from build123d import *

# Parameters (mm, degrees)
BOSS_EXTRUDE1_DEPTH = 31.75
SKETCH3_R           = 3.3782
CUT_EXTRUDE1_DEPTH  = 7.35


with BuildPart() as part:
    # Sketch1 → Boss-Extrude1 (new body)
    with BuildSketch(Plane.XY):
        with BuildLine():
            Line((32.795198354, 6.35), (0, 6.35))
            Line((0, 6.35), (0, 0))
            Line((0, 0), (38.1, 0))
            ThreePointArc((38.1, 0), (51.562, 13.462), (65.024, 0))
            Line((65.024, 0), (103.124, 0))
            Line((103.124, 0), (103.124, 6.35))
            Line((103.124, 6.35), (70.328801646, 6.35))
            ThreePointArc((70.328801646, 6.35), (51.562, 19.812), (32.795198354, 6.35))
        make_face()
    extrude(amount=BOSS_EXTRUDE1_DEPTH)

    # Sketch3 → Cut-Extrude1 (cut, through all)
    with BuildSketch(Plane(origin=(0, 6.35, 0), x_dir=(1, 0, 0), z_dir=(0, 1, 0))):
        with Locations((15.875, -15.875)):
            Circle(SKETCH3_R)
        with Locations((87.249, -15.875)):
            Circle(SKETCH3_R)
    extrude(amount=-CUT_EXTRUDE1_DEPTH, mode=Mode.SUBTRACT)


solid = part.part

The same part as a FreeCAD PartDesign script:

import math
import FreeCAD as App
import Part
import Sketcher
Q = App.Units.Quantity

doc = App.newDocument("Part")
body = doc.addObject("PartDesign::Body", "Body")

# Sketch on XY plane
sketch1 = body.newObject("Sketcher::SketchObject", "Sketch")
sketch1.AttachmentSupport = (doc.getObject("XY_Plane"), [""])
sketch1.MapMode = "FlatFace"
sketch1.addGeometry([
    Part.LineSegment(App.Vector(32.795198, 6.35, 0), App.Vector(0, 6.35, 0)),  # 0
    Part.LineSegment(App.Vector(0, 6.35, 0), App.Vector(0, 0, 0)),  # 1
    Part.LineSegment(App.Vector(0, 0, 0), App.Vector(38.1, 0, 0)),  # 2
    Part.ArcOfCircle(Part.Circle(App.Vector(51.562, 0, 0), App.Vector(0, 0, 1), 13.462), math.radians(0), math.radians(180)),  # 3
    Part.LineSegment(App.Vector(65.024, 0, 0), App.Vector(103.124, 0, 0)),  # 4
    Part.LineSegment(App.Vector(103.124, 0, 0), App.Vector(103.124, 6.35, 0)),  # 5
    Part.LineSegment(App.Vector(103.124, 6.35, 0), App.Vector(70.328802, 6.35, 0)),  # 6
    Part.ArcOfCircle(Part.Circle(App.Vector(51.562, 0, 0), App.Vector(0, 0, 1), 19.812), math.radians(18.693941), math.radians(161.306059)),  # 7
], False)
sketch1.addConstraint([
    Sketcher.Constraint("Coincident", 0, 2, 1, 1),
    Sketcher.Constraint("Coincident", 1, 2, 2, 1),
    Sketcher.Constraint("Coincident", 2, 2, 3, 2),
    Sketcher.Constraint("Coincident", 3, 1, 4, 1),
    Sketcher.Constraint("Coincident", 4, 2, 5, 1),
    Sketcher.Constraint("Coincident", 5, 2, 6, 1),
    Sketcher.Constraint("Coincident", 6, 2, 7, 1),
    Sketcher.Constraint("Coincident", 7, 2, 0, 1),
    Sketcher.Constraint("Horizontal", 0),
    Sketcher.Constraint("Vertical", 1),
    Sketcher.Constraint("Horizontal", 2),
    Sketcher.Constraint("Horizontal", 4),
    Sketcher.Constraint("Vertical", 5),
    Sketcher.Constraint("Horizontal", 6),
    Sketcher.Constraint("Coincident", 1, 2, -1, 1),
    Sketcher.Constraint("Coincident", 7, 3, 3, 3),
    Sketcher.Constraint("PointOnObject", 3, 3, -1),
    Sketcher.Constraint("PointOnObject", 3, 1, -1),
    Sketcher.Constraint("Horizontal", 0, 2, 5, 2),
    Sketcher.Constraint("Equal", 2, 4),
    Sketcher.Constraint("Radius", 3, Q("0.53 in")),
    Sketcher.Constraint("Radius", 7, Q("0.78 in")),
    Sketcher.Constraint("DistanceX", 2, 1, 2, 2, Q("1.5 in")),
    Sketcher.Constraint("DistanceY", 1, 2, 1, 1, Q("0.25 in")),
])
pad1 = body.newObject("PartDesign::Pad", "Pad")
pad1.Profile = sketch1
pad1.Length = Q("1.25 in")

# Sketch on XZ plane
sketch2 = body.newObject("Sketcher::SketchObject", "Sketch001")
sketch2.AttachmentSupport = (doc.getObject("XZ_Plane"), [""])
sketch2.MapMode = "FlatFace"
sketch2.AttachmentOffset = App.Placement(App.Vector(0, 0, -0.25 * 25.4), App.Rotation())
sketch2.addGeometry([
    Part.Circle(App.Vector(15.875, 15.875, 0), App.Vector(0, 0, 1), 3.3782),
    Part.Circle(App.Vector(87.249, 15.875, 0), App.Vector(0, 0, 1), 3.3782),
], False)
sketch2.addConstraint([
    Sketcher.Constraint("Equal", 0, 1),
    Sketcher.Constraint("Horizontal", 0, 3, 1, 3),
    Sketcher.Constraint("Diameter", 0, Q("0.266 in")),
    Sketcher.Constraint("DistanceX", 0, 3, 1, 3, Q("2.81 in")),
    Sketcher.Constraint("DistanceX", -1, 1, 0, 3, Q("0.625 in")),
    Sketcher.Constraint("DistanceY", -1, 1, 0, 3, Q("0.625 in")),
])
pocket1 = body.newObject("PartDesign::Pocket", "Pocket")
pocket1.Profile = sketch2
pocket1.Type = "ThroughAll"
pocket1.Reversed = True

doc.recompute()
